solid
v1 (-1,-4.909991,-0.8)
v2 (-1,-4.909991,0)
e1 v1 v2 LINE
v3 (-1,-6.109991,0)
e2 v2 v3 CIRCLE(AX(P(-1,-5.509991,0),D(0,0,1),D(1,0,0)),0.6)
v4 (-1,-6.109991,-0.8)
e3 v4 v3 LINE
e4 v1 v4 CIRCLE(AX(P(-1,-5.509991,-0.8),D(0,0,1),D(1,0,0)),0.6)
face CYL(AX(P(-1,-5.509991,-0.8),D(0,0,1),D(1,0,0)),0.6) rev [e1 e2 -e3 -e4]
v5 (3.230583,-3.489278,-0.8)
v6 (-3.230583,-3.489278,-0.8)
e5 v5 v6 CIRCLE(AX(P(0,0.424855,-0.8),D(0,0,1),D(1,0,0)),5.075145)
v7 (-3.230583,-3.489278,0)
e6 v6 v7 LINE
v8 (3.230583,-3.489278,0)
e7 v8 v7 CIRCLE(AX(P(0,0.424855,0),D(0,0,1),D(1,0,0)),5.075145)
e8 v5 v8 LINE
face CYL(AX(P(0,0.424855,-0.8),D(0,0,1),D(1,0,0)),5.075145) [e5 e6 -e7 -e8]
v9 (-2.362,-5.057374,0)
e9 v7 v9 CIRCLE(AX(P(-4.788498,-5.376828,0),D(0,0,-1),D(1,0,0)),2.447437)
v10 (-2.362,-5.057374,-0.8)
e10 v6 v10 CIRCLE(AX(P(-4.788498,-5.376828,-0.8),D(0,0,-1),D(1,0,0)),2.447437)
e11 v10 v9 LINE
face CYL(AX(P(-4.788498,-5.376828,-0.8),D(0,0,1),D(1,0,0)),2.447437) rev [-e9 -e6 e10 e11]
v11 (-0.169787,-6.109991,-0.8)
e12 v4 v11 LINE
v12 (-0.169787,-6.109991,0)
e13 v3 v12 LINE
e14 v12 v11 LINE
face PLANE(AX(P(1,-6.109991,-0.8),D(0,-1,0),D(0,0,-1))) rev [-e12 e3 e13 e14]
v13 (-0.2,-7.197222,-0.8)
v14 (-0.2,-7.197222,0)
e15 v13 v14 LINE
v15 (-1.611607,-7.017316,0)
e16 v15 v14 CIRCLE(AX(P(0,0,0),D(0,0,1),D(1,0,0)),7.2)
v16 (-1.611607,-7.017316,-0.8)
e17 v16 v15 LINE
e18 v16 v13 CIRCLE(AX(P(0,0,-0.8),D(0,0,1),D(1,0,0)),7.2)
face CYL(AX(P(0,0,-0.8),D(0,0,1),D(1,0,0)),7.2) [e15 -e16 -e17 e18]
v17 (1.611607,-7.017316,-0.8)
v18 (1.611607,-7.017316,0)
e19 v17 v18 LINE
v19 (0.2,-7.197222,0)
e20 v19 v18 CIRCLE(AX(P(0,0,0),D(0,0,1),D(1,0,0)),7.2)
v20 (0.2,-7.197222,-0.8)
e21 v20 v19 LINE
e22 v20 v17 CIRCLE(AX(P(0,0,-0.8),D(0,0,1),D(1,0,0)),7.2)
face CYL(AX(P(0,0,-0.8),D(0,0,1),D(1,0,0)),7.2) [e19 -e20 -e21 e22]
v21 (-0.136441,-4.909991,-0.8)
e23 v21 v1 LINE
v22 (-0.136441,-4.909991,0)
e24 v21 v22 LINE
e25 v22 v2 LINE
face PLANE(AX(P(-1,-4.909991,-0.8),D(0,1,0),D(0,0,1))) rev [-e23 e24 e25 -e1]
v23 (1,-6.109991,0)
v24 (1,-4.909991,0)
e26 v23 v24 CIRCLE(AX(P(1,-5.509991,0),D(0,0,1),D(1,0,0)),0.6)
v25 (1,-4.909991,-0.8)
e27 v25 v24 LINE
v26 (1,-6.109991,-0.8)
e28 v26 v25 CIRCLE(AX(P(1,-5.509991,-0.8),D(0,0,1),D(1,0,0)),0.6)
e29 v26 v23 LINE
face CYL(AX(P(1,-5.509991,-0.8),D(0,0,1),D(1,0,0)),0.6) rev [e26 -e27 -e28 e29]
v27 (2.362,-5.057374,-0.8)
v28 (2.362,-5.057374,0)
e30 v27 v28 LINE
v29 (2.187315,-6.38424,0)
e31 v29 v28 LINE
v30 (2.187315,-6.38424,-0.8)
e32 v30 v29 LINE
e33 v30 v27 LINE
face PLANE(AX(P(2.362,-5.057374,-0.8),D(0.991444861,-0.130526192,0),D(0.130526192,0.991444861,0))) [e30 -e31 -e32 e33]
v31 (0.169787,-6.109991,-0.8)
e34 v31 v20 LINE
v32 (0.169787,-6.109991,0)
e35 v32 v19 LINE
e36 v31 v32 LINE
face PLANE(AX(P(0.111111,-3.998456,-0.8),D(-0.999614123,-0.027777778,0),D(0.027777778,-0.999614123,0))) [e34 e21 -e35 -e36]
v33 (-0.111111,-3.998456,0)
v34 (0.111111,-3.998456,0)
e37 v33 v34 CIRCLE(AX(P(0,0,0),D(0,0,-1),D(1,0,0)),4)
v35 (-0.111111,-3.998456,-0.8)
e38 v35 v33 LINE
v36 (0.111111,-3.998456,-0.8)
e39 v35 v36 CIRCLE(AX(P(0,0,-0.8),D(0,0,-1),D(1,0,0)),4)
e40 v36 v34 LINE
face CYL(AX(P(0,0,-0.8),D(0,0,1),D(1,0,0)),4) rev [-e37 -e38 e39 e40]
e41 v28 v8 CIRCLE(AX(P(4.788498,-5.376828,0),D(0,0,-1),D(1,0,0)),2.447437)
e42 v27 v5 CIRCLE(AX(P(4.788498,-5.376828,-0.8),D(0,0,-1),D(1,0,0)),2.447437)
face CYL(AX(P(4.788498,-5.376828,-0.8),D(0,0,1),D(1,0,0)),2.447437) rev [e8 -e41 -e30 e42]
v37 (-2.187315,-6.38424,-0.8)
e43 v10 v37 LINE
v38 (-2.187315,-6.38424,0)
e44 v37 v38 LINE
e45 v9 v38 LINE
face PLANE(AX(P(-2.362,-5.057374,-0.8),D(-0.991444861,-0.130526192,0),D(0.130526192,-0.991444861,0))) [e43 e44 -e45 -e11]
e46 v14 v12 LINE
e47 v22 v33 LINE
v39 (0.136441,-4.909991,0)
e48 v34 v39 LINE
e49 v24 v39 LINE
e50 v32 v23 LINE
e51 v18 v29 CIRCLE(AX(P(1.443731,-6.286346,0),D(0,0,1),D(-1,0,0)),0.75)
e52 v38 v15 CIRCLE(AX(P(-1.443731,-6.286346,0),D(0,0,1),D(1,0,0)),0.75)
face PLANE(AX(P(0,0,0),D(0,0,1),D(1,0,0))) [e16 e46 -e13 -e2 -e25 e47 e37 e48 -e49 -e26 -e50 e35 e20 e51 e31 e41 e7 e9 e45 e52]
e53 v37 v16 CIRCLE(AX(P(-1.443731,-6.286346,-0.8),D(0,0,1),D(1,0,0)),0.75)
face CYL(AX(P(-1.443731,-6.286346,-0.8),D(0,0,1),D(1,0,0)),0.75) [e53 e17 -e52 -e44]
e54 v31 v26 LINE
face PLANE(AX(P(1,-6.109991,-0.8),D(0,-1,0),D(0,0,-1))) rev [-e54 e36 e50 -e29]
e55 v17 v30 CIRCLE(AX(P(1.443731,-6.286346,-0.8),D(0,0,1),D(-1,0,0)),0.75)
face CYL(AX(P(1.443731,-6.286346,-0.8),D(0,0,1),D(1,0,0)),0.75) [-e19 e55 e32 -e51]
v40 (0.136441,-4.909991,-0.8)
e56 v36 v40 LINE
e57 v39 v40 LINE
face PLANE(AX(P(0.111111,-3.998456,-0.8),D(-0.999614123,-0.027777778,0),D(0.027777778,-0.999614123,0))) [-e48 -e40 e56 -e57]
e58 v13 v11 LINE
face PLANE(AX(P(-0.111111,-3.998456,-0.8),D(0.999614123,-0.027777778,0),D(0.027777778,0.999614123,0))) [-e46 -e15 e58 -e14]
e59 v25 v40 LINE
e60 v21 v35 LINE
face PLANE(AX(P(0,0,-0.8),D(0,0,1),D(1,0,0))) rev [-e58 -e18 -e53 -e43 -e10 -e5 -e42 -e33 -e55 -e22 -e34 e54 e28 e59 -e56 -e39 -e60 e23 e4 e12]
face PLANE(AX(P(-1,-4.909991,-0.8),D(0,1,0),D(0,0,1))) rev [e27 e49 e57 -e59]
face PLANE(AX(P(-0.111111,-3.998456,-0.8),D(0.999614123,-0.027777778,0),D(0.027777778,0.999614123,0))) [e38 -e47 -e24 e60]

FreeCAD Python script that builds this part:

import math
import FreeCAD as App
import Part
import Sketcher

V = App.Vector
Q = App.Units.Quantity

doc = App.newDocument("Part")
body = doc.addObject("PartDesign::Body", "Body")

# Sketch on XY plane
sketch1 = body.newObject("Sketcher::SketchObject", "Sketch")
sketch1.AttachmentSupport = (doc.getObject("XY_Plane"), [""])
sketch1.MapMode = "FlatFace"
sketch1.addGeometry([
    Part.LineSegment(V(0.11, -4, 0), V(0.2, -7.2, 0)),  # 0
    Part.ArcOfCircle(Part.Circle(V(0, 0, 0), V(0, 0, 1), 7.2), math.radians(-88.41), math.radians(-77.07)),  # 1
    Part.ArcOfCircle(Part.Circle(V(1.44, -6.29, 0), V(0, 0, 1), 0.75), math.radians(-77), math.radians(-7)),  # 2
    Part.LineSegment(V(2.19, -6.38, 0), V(2.36, -5.06, 0)),  # 3
    Part.ArcOfCircle(Part.Circle(V(4.79, -5.38, 0), V(0, 0, 1), 2.45), math.radians(130), math.radians(173)),  # 4
    Part.ArcOfCircle(Part.Circle(V(0, 0.42, 0), V(0, 0, 1), 5.08), math.radians(-50), math.radians(230)),  # 5
    Part.ArcOfCircle(Part.Circle(V(-4.79, -5.38, 0), V(0, 0, 1), 2.45), math.radians(7), math.radians(50)),  # 6
    Part.LineSegment(V(-2.36, -5.06, 0), V(-2.19, -6.38, 0)),  # 7
    Part.ArcOfCircle(Part.Circle(V(-1.44, -6.29, 0), V(0, 0, 1), 0.75), math.radians(-173), math.radians(-103)),  # 8
    Part.ArcOfCircle(Part.Circle(V(0, 0, 0), V(0, 0, 1), 7.2), math.radians(-102.93), math.radians(-91.59)),  # 9
    Part.LineSegment(V(-0.2, -7.2, 0), V(-0.11, -4, 0)),  # 10
    Part.ArcOfCircle(Part.Circle(V(0, 0, 0), V(0, 0, 1), 4), math.radians(-88), math.radians(268)),  # 11
    Part.Circle(V(-1, -5.51, 0), V(0, 0, 1), 0.6),  # 12
    Part.Circle(V(1, -5.51, 0), V(0, 0, 1), 0.6),  # 13
], False)
sketch1.addConstraint([
    Sketcher.Constraint("Coincident", 0, 2, 1, 1),
    Sketcher.Constraint("Tangent", 1, 2, 2, 1),
    Sketcher.Constraint("Tangent", 2, 2, 3, 1),
    Sketcher.Constraint("Tangent", 3, 2, 4, 2),
    Sketcher.Constraint("Tangent", 4, 1, 5, 1),
    Sketcher.Constraint("Tangent", 5, 2, 6, 2),
    Sketcher.Constraint("Tangent", 6, 1, 7, 1),
    Sketcher.Constraint("Tangent", 7, 2, 8, 1),
    Sketcher.Constraint("Tangent", 8, 2, 9, 1),
    Sketcher.Constraint("Coincident", 9, 2, 10, 1),
    Sketcher.Constraint("Coincident", 10, 2, 11, 2),
    Sketcher.Constraint("Coincident", 11, 1, 0, 1),
    Sketcher.Constraint("Coincident", 1, 3, -1, 1),
    Sketcher.Constraint("Coincident", 9, 3, -1, 1),
    Sketcher.Constraint("Coincident", 11, 3, -1, 1),
    Sketcher.Constraint("Equal", 4, 6),
    Sketcher.Constraint("Equal", 2, 8),
    Sketcher.Constraint("Equal", 1, 9),
    Sketcher.Constraint("Equal", 12, 13),
    Sketcher.Constraint("Symmetric", 4, 3, 6, 3, -2),
    Sketcher.Constraint("Symmetric", 12, 3, 13, 3, -2),
    Sketcher.Constraint("Horizontal", 2, 3, 8, 3),
    Sketcher.Constraint("Horizontal", 0, 2, 9, 2),
    Sketcher.Constraint("Horizontal", 10, 2, 11, 1),
    Sketcher.Constraint("Radius", 11, 4.0),
    Sketcher.Constraint("Diameter", 12, 1.2),
    Sketcher.Constraint("Radius", 1, 7.2),
    Sketcher.Constraint("Radius", 2, 0.75),
    Sketcher.Constraint("DistanceX", 12, 3, -1, 1, 1.0),
    Sketcher.Constraint("Angle", 3, Q("82.5 deg")),
    Sketcher.Constraint("DistanceX", -1, 1, 0, 2, 0.2),
    Sketcher.Constraint("DistanceX", -1, 1, 3, 2, 2.362),
    Sketcher.Constraint("Radius", 4, 2.447437),
    Sketcher.Constraint("Radius", 5, 5.075145),
    Sketcher.Constraint("DistanceY", 2, 3, 5, 3, 6.7112),
    Sketcher.Constraint("DistanceY", 12, 3, -1, 1, 5.509991),
    Sketcher.Constraint("DistanceX", 10, 2, -1, 1, 0.111111),
])
pad1 = body.newObject("PartDesign::Pad", "Pad")
pad1.Profile = sketch1
pad1.Length = 0.8
pad1.Reversed = True

# Sketch on XY plane
sketch2 = body.newObject("Sketcher::SketchObject", "Sketch001")
sketch2.AttachmentSupport = (doc.getObject("XY_Plane"), [""])
sketch2.MapMode = "FlatFace"
sketch2.addGeometry([
    Part.LineSegment(V(-1, -4.9, 0), V(-1, -6.1, 0)),
    Part.LineSegment(V(-1, -6.1, 0), V(1, -6.1, 0)),
    Part.LineSegment(V(1, -6.1, 0), V(1, -4.9, 0)),
    Part.LineSegment(V(1, -4.9, 0), V(-1, -4.9, 0)),
], False)
sketch2.addConstraint([
    Sketcher.Constraint("Coincident", 0, 2, 1, 1),
    Sketcher.Constraint("Coincident", 1, 2, 2, 1),
    Sketcher.Constraint("Coincident", 2, 2, 3, 1),
    Sketcher.Constraint("Coincident", 3, 2, 0, 1),
    Sketcher.Constraint("Vertical", 0),
    Sketcher.Constraint("Horizontal", 1),
    Sketcher.Constraint("Vertical", 2),
    Sketcher.Constraint("Horizontal", 3),
    Sketcher.Constraint("DistanceX", 1, 1, 1, 2, 2.0),
    Sketcher.Constraint("DistanceY", 0, 2, 0, 1, 1.2),
    Sketcher.Constraint("DistanceX", 0, 2, -1, 1, 1.0),
    Sketcher.Constraint("DistanceY", 0, 2, -1, 1, 6.109991),
])
pocket1 = body.newObject("PartDesign::Pocket", "Pocket")
pocket1.Profile = sketch2
pocket1.Type = "ThroughAll"

doc.recompute()
